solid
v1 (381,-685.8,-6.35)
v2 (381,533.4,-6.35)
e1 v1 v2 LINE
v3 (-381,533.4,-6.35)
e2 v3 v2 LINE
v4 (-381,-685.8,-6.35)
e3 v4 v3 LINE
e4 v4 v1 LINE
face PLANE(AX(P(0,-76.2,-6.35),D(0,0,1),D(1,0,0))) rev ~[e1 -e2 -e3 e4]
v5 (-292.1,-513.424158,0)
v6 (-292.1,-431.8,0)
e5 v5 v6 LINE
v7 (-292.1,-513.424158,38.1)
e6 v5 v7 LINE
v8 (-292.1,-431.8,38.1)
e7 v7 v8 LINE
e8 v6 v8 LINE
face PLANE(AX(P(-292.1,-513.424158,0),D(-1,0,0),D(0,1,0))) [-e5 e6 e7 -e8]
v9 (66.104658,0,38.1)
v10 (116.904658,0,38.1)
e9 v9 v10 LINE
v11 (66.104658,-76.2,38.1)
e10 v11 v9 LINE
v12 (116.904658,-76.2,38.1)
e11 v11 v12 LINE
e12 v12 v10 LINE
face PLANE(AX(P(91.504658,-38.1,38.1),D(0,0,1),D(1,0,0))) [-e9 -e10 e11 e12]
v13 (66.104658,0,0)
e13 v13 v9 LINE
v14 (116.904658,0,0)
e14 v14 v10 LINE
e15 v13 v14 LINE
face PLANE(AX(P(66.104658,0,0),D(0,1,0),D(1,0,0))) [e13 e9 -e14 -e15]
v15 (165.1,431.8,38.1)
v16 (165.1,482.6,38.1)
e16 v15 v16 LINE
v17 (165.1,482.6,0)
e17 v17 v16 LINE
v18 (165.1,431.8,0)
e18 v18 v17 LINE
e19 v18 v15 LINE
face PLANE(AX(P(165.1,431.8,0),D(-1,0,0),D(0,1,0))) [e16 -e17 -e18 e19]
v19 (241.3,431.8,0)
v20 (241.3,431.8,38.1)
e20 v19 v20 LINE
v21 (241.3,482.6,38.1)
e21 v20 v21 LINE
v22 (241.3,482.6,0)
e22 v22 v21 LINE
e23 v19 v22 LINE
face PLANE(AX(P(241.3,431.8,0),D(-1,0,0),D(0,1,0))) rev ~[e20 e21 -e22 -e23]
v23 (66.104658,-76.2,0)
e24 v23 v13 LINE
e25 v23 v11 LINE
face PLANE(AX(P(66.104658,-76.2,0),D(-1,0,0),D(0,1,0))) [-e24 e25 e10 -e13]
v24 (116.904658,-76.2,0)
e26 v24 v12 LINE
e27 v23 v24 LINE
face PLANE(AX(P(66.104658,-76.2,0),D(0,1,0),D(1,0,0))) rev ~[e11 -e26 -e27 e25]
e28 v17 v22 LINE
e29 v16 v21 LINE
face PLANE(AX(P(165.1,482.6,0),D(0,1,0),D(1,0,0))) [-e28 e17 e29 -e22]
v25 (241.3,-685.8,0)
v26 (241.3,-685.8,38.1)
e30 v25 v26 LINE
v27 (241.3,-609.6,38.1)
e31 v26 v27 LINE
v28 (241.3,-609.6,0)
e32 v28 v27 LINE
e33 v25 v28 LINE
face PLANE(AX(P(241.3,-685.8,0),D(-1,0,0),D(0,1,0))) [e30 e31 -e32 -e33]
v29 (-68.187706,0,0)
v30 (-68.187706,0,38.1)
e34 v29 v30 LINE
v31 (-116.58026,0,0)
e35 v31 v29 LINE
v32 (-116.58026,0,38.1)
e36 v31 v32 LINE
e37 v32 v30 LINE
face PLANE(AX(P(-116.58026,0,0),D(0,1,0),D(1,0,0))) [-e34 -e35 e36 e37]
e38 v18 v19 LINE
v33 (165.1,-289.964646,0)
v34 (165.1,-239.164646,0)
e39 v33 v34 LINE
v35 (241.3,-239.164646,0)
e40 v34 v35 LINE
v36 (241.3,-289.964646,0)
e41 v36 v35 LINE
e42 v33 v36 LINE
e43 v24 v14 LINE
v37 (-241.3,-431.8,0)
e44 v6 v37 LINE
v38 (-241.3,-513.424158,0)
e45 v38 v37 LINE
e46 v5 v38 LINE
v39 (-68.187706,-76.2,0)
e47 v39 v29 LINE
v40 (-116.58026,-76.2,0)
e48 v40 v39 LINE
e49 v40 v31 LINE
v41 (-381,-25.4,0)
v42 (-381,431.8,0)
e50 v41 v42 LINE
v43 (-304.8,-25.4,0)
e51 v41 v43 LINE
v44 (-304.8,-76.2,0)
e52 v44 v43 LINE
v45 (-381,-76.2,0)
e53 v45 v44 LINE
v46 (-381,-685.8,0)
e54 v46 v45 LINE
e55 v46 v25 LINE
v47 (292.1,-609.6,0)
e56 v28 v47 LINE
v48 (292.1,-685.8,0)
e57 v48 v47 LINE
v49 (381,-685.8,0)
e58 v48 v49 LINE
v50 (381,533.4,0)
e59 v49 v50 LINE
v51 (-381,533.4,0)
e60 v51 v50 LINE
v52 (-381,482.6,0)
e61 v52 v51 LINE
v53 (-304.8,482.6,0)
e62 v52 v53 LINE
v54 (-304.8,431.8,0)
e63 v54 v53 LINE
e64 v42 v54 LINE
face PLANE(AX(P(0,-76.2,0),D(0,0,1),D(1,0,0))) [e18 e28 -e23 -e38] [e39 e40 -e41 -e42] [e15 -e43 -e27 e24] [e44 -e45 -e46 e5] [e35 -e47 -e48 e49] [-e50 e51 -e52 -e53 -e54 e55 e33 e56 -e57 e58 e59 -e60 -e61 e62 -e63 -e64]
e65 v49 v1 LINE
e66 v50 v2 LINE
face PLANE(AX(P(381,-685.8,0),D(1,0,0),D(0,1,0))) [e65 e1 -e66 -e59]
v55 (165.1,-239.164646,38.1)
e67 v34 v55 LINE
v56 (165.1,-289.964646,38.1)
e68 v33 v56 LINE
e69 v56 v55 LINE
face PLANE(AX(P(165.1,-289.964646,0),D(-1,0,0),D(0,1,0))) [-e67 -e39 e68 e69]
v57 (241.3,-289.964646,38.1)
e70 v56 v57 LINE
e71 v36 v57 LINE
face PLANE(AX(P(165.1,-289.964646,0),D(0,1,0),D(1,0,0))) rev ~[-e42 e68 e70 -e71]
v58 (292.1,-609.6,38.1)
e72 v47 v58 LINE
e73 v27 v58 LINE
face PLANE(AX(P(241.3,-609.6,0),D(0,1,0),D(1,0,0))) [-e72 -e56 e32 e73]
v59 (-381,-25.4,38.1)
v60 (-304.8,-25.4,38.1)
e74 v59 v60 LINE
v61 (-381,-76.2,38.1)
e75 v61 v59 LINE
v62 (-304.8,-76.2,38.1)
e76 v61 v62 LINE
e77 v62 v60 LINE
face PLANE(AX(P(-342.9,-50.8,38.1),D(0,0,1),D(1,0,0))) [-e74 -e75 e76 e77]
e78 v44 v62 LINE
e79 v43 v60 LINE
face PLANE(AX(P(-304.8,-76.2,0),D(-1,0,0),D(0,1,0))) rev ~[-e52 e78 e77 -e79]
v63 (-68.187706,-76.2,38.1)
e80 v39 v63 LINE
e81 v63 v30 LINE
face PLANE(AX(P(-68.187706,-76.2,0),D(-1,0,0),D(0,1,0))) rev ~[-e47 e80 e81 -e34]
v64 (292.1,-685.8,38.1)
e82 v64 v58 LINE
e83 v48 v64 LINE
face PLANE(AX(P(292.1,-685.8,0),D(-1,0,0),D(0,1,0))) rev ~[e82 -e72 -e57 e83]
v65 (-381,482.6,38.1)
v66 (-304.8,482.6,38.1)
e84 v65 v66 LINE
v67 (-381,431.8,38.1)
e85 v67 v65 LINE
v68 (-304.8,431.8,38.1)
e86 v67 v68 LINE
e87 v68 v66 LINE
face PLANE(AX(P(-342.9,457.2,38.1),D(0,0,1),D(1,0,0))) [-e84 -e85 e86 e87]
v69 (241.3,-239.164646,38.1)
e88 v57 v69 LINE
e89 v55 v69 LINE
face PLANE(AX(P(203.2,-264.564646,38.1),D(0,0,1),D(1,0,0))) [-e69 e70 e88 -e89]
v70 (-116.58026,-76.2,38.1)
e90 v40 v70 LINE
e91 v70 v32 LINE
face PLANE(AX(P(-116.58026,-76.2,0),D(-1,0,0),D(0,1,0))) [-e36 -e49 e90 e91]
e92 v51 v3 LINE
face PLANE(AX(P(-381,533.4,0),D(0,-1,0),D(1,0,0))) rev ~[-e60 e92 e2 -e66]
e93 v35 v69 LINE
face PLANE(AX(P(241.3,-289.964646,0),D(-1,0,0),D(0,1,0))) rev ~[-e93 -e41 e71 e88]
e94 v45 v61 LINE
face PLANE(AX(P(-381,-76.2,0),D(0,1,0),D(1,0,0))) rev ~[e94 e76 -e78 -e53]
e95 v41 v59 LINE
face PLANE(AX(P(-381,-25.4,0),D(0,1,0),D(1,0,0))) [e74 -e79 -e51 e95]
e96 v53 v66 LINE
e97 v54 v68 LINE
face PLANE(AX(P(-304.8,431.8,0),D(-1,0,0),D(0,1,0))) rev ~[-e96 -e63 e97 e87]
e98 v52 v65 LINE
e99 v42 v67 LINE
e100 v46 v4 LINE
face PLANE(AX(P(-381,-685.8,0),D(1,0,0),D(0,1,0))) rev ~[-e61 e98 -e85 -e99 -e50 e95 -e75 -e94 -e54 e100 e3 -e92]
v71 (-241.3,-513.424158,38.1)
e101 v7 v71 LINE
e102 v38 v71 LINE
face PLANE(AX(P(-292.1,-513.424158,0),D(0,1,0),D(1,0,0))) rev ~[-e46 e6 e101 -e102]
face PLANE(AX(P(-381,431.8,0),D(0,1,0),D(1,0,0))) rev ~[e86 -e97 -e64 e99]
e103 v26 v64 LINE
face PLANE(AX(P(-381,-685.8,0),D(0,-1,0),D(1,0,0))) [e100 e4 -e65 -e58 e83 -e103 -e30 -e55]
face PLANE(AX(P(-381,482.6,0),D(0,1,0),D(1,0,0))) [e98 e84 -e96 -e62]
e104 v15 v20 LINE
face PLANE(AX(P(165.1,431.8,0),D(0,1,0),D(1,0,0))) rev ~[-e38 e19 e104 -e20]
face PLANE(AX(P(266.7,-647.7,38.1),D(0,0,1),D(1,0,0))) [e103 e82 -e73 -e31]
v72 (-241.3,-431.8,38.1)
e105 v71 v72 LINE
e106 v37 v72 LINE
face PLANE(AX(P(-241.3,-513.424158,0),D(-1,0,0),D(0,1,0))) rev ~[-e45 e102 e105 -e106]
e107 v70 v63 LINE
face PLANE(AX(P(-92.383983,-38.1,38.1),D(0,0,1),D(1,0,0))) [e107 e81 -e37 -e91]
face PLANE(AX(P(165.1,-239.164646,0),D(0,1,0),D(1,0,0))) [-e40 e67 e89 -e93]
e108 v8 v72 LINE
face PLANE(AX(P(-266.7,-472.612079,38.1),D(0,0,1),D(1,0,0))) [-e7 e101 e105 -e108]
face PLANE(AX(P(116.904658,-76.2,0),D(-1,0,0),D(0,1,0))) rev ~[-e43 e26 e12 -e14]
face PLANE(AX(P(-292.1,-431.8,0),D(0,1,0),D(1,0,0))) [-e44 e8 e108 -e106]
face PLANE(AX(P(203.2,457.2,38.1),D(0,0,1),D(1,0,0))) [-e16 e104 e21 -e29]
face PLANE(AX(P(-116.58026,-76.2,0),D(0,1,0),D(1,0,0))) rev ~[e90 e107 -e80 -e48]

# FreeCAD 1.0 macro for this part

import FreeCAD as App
import Part
import Sketcher
from FreeCAD import Vector
Q = App.Units.Quantity

doc = App.newDocument("Part")
body = doc.addObject("PartDesign::Body", "Body")

sketch1 = body.newObject("Sketcher::SketchObject", "Sketch")
sketch1.AttachmentSupport = (doc.getObject("XY_Plane"), [""])
sketch1.MapMode = "FlatFace"
sketch1.addGeometry(Part.LineSegment(Vector(-381, 533.4, 0), Vector(-381, -685.8, 0)), False)
sketch1.addGeometry(Part.LineSegment(Vector(-381, -685.8, 0), Vector(381, -685.8, 0)), False)
sketch1.addGeometry(Part.LineSegment(Vector(381, -685.8, 0), Vector(381, 533.4, 0)), False)
sketch1.addGeometry(Part.LineSegment(Vector(381, 533.4, 0), Vector(-381, 533.4, 0)), False)
sketch1.addConstraint(Sketcher.Constraint("Coincident", 0, 2, 1, 1))
sketch1.addConstraint(Sketcher.Constraint("Coincident", 1, 2, 2, 1))
sketch1.addConstraint(Sketcher.Constraint("Coincident", 2, 2, 3, 1))
sketch1.addConstraint(Sketcher.Constraint("Coincident", 3, 2, 0, 1))
sketch1.addConstraint(Sketcher.Constraint("Vertical", 0))
sketch1.addConstraint(Sketcher.Constraint("Horizontal", 1))
sketch1.addConstraint(Sketcher.Constraint("Vertical", 2))
sketch1.addConstraint(Sketcher.Constraint("Horizontal", 3))
sketch1.addConstraint(Sketcher.Constraint("DistanceX", 1, 1, 1, 2, Q("30 in")))
sketch1.addConstraint(Sketcher.Constraint("DistanceY", 0, 2, 0, 1, Q("48 in")))
sketch1.addConstraint(Sketcher.Constraint("DistanceX", 0, 2, -1, 1, Q("15 in")))
sketch1.addConstraint(Sketcher.Constraint("DistanceY", 0, 2, -1, 1, Q("27 in")))
pad1 = body.newObject("PartDesign::Pad", "Pad")
pad1.Profile = sketch1
pad1.Length = Q("0.25 in")
pad1.Reversed = True

sketch2 = body.newObject("Sketcher::SketchObject", "Sketch001")
sketch2.AttachmentSupport = (doc.getObject("XY_Plane"), [""])
sketch2.MapMode = "FlatFace"
sketch2.addGeometry(Part.LineSegment(Vector(-381, 482.6, 0), Vector(-381, 431.8, 0)), False)
sketch2.addGeometry(Part.LineSegment(Vector(-381, 431.8, 0), Vector(-304.8, 431.8, 0)), False)
sketch2.addGeometry(Part.LineSegment(Vector(-304.8, 431.8, 0), Vector(-304.8, 482.6, 0)), False)
sketch2.addGeometry(Part.LineSegment(Vector(-304.8, 482.6, 0), Vector(-381, 482.6, 0)), False)
sketch2.addGeometry(Part.LineSegment(Vector(165.1, 482.6, 0), Vector(165.1, 431.8, 0)), False)
sketch2.addGeometry(Part.LineSegment(Vector(165.1, 431.8, 0), Vector(241.3, 431.8, 0)), False)
sketch2.addGeometry(Part.LineSegment(Vector(241.3, 431.8, 0), Vector(241.3, 482.6, 0)), False)
sketch2.addGeometry(Part.LineSegment(Vector(241.3, 482.6, 0), Vector(165.1, 482.6, 0)), False)
sketch2.addGeometry(Part.LineSegment(Vector(165.1, -239.164646, 0), Vector(165.1, -289.964646, 0)), False)
sketch2.addGeometry(Part.LineSegment(Vector(165.1, -289.964646, 0), Vector(241.3, -289.964646, 0)), False)
sketch2.addGeometry(Part.LineSegment(Vector(241.3, -289.964646, 0), Vector(241.3, -239.164646, 0)), False)
sketch2.addGeometry(Part.LineSegment(Vector(241.3, -239.164646, 0), Vector(165.1, -239.164646, 0)), False)
sketch2.addGeometry(Part.LineSegment(Vector(66.104658, 0, 0), Vector(66.104658, -76.2, 0)), False)
sketch2.addGeometry(Part.LineSegment(Vector(66.104658, -76.2, 0), Vector(116.904658, -76.2, 0)), False)
sketch2.addGeometry(Part.LineSegment(Vector(116.904658, -76.2, 0), Vector(116.904658, 0, 0)), False)
sketch2.addGeometry(Part.LineSegment(Vector(116.904658, 0, 0), Vector(66.104658, 0, 0)), False)
sketch2.addGeometry(Part.LineSegment(Vector(-292.1, -431.8, 0), Vector(-292.1, -513.424158, 0)), False)
sketch2.addGeometry(Part.LineSegment(Vector(-292.1, -513.424158, 0), Vector(-241.3, -513.424158, 0)), False)
sketch2.addGeometry(Part.LineSegment(Vector(-241.3, -513.424158, 0), Vector(-241.3, -431.8, 0)), False)
sketch2.addGeometry(Part.LineSegment(Vector(-241.3, -431.8, 0), Vector(-292.1, -431.8, 0)), False)
sketch2.addGeometry(Part.LineSegment(Vector(241.3, -609.6, 0), Vector(241.3, -685.8, 0)), False)
sketch2.addGeometry(Part.LineSegment(Vector(241.3, -685.8, 0), Vector(292.1, -685.8, 0)), False)
sketch2.addGeometry(Part.LineSegment(Vector(292.1, -685.8, 0), Vector(292.1, -609.6, 0)), False)
sketch2.addGeometry(Part.LineSegment(Vector(292.1, -609.6, 0), Vector(241.3, -609.6, 0)), False)
sketch2.addGeometry(Part.LineSegment(Vector(-381, -25.4, 0), Vector(-381, -76.2, 0)), False)
sketch2.addGeometry(Part.LineSegment(Vector(-381, -76.2, 0), Vector(-304.8, -76.2, 0)), False)
sketch2.addGeometry(Part.LineSegment(Vector(-304.8, -76.2, 0), Vector(-304.8, -25.4, 0)), False)
sketch2.addGeometry(Part.LineSegment(Vector(-304.8, -25.4, 0), Vector(-381, -25.4, 0)), False)
sketch2.addGeometry(Part.LineSegment(Vector(-116.58026, 0, 0), Vector(-116.58026, -76.2, 0)), False)
sketch2.addGeometry(Part.LineSegment(Vector(-116.58026, -76.2, 0), Vector(-68.187706, -76.2, 0)), False)
sketch2.addGeometry(Part.LineSegment(Vector(-68.187706, -76.2, 0), Vector(-68.187706, 0, 0)), False)
sketch2.addGeometry(Part.LineSegment(Vector(-68.187706, 0, 0), Vector(-116.58026, 0, 0)), False)
sketch2.addConstraint(Sketcher.Constraint("Coincident", 0, 2, 1, 1))
sketch2.addConstraint(Sketcher.Constraint("Coincident", 1, 2, 2, 1))
sketch2.addConstraint(Sketcher.Constraint("Coincident", 2, 2, 3, 1))
sketch2.addConstraint(Sketcher.Constraint("Coincident", 3, 2, 0, 1))
sketch2.addConstraint(Sketcher.Constraint("Coincident", 4, 2, 5, 1))
sketch2.addConstraint(Sketcher.Constraint("Coincident", 5, 2, 6, 1))
sketch2.addConstraint(Sketcher.Constraint("Coincident", 6, 2, 7, 1))
sketch2.addConstraint(Sketcher.Constraint("Coincident", 7, 2, 4, 1))
sketch2.addConstraint(Sketcher.Constraint("Coincident", 8, 2, 9, 1))
sketch2.addConstraint(Sketcher.Constraint("Coincident", 9, 2, 10, 1))
sketch2.addConstraint(Sketcher.Constraint("Coincident", 10, 2, 11, 1))
sketch2.addConstraint(Sketcher.Constraint("Coincident", 11, 2, 8, 1))
sketch2.addConstraint(Sketcher.Constraint("Coincident", 12, 2, 13, 1))
sketch2.addConstraint(Sketcher.Constraint("Coincident", 13, 2, 14, 1))
sketch2.addConstraint(Sketcher.Constraint("Coincident", 14, 2, 15, 1))
sketch2.addConstraint(Sketcher.Constraint("Coincident", 15, 2, 12, 1))
sketch2.addConstraint(Sketcher.Constraint("Coincident", 16, 2, 17, 1))
sketch2.addConstraint(Sketcher.Constraint("Coincident", 17, 2, 18, 1))
sketch2.addConstraint(Sketcher.Constraint("Coincident", 18, 2, 19, 1))
sketch2.addConstraint(Sketcher.Constraint("Coincident", 19, 2, 16, 1))
sketch2.addConstraint(Sketcher.Constraint("Coincident", 20, 2, 21, 1))
sketch2.addConstraint(Sketcher.Constraint("Coincident", 21, 2, 22, 1))
sketch2.addConstraint(Sketcher.Constraint("Coincident", 22, 2, 23, 1))
sketch2.addConstraint(Sketcher.Constraint("Coincident", 23, 2, 20, 1))
sketch2.addConstraint(Sketcher.Constraint("Coincident", 24, 2, 25, 1))
sketch2.addConstraint(Sketcher.Constraint("Coincident", 25, 2, 26, 1))
sketch2.addConstraint(Sketcher.Constraint("Coincident", 26, 2, 27, 1))
sketch2.addConstraint(Sketcher.Constraint("Coincident", 27, 2, 24, 1))
sketch2.addConstraint(Sketcher.Constraint("Coincident", 28, 2, 29, 1))
sketch2.addConstraint(Sketcher.Constraint("Coincident", 29, 2, 30, 1))
sketch2.addConstraint(Sketcher.Constraint("Coincident", 30, 2, 31, 1))
sketch2.addConstraint(Sketcher.Constraint("Coincident", 31, 2, 28, 1))
sketch2.addConstraint(Sketcher.Constraint("Vertical", 0))
sketch2.addConstraint(Sketcher.Constraint("Horizontal", 1))
sketch2.addConstraint(Sketcher.Constraint("Vertical", 2))
sketch2.addConstraint(Sketcher.Constraint("Horizontal", 3))
sketch2.addConstraint(Sketcher.Constraint("Vertical", 4))
sketch2.addConstraint(Sketcher.Constraint("Horizontal", 5))
sketch2.addConstraint(Sketcher.Constraint("Vertical", 6))
sketch2.addConstraint(Sketcher.Constraint("Horizontal", 7))
sketch2.addConstraint(Sketcher.Constraint("Vertical", 8))
sketch2.addConstraint(Sketcher.Constraint("Horizontal", 9))
sketch2.addConstraint(Sketcher.Constraint("Vertical", 10))
sketch2.addConstraint(Sketcher.Constraint("Horizontal", 11))
sketch2.addConstraint(Sketcher.Constraint("Vertical", 12))
sketch2.addConstraint(Sketcher.Constraint("Horizontal", 13))
sketch2.addConstraint(Sketcher.Constraint("Vertical", 14))
sketch2.addConstraint(Sketcher.Constraint("Horizontal", 15))
sketch2.addConstraint(Sketcher.Constraint("Vertical", 16))
sketch2.addConstraint(Sketcher.Constraint("Horizontal", 17))
sketch2.addConstraint(Sketcher.Constraint("Vertical", 18))
sketch2.addConstraint(Sketcher.Constraint("Horizontal", 19))
sketch2.addConstraint(Sketcher.Constraint("Vertical", 20))
sketch2.addConstraint(Sketcher.Constraint("Horizontal", 21))
sketch2.addConstraint(Sketcher.Constraint("Vertical", 22))
sketch2.addConstraint(Sketcher.Constraint("Horizontal", 23))
sketch2.addConstraint(Sketcher.Constraint("Vertical", 24))
sketch2.addConstraint(Sketcher.Constraint("Horizontal", 25))
sketch2.addConstraint(Sketcher.Constraint("Vertical", 26))
sketch2.addConstraint(Sketcher.Constraint("Horizontal", 27))
sketch2.addConstraint(Sketcher.Constraint("Vertical", 28))
sketch2.addConstraint(Sketcher.Constraint("Horizontal", 29))
sketch2.addConstraint(Sketcher.Constraint("Vertical", 30))
sketch2.addConstraint(Sketcher.Constraint("Horizontal", 31))
sketch2.addConstraint(Sketcher.Constraint("Symmetric", 5, 2, 18, 2, -1, 1))
sketch2.addConstraint(Sketcher.Constraint("PointOnObject", 14, 2, -1))
sketch2.addConstraint(Sketcher.Constraint("PointOnObject", 30, 2, -1))
sketch2.addConstraint(Sketcher.Constraint("Horizontal", 1, 2, 4, 2))
sketch2.addConstraint(Sketcher.Constraint("Horizontal", 3, 2, 6, 2))
sketch2.addConstraint(Sketcher.Constraint("Horizontal", 13, 2, 24, 2))
sketch2.addConstraint(Sketcher.Constraint("Horizontal", 25, 2, 28, 2))
sketch2.addConstraint(Sketcher.Constraint("Vertical", 7, 2, 8, 2))
sketch2.addConstraint(Sketcher.Constraint("Vertical", 6, 2, 9, 2))
sketch2.addConstraint(Sketcher.Constraint("Vertical", 10, 2, 20, 2))
sketch2.addConstraint(Sketcher.Constraint("Vertical", 3, 2, 24, 2))
sketch2.addConstraint(Sketcher.Constraint("Vertical", 2, 2, 25, 2))
sketch2.addConstraint(Sketcher.Constraint("Equal", 3, 5))
sketch2.addConstraint(Sketcher.Constraint("Equal", 15, 17))
sketch2.addConstraint(Sketcher.Constraint("Equal", 19, 21))
sketch2.addConstraint(Sketcher.Constraint("Equal", 23, 0))
sketch2.addConstraint(Sketcher.Constraint("Equal", 6, 8))
sketch2.addConstraint(Sketcher.Constraint("Equal", 27, 12))
sketch2.addConstraint(Sketcher.Constraint("Equal", 14, 20))
sketch2.addConstraint(Sketcher.Constraint("Equal", 10, 24))
sketch2.addConstraint(Sketcher.Constraint("DistanceX", 1, 1, 1, 2, Q("3 in")))
sketch2.addConstraint(Sketcher.Constraint("DistanceX", 13, 1, 13, 2, Q("2 in")))
sketch2.addConstraint(Sketcher.Constraint("DistanceX", 0, 2, -1, 1, Q("15 in")))
sketch2.addConstraint(Sketcher.Constraint("DistanceY", -1, 1, 0, 2, Q("17 in")))
sketch2.addConstraint(Sketcher.Constraint("DistanceY", 20, 2, -1, 1, Q("27 in")))
sketch2.addConstraint(Sketcher.Constraint("DistanceX", 16, 2, 8, 2, Q("18 in")))
sketch2.addConstraint(Sketcher.Constraint("DistanceY", 16, 2, 16, 1, Q("81.624158 mm")))
sketch2.addConstraint(Sketcher.Constraint("DistanceX", 29, 1, 29, 2, Q("48.392554 mm")))
sketch2.addConstraint(Sketcher.Constraint("DistanceX", -1, 1, 12, 2, Q("66.104658 mm")))
sketch2.addConstraint(Sketcher.Constraint("DistanceX", 28, 2, -1, 1, Q("116.58026 mm")))
sketch2.addConstraint(Sketcher.Constraint("DistanceY", 8, 2, -1, 1, Q("289.964646 mm")))
pad2 = body.newObject("PartDesign::Pad", "Pad001")
pad2.Profile = sketch2
pad2.Length = Q("1.5 in")

doc.recompute()
